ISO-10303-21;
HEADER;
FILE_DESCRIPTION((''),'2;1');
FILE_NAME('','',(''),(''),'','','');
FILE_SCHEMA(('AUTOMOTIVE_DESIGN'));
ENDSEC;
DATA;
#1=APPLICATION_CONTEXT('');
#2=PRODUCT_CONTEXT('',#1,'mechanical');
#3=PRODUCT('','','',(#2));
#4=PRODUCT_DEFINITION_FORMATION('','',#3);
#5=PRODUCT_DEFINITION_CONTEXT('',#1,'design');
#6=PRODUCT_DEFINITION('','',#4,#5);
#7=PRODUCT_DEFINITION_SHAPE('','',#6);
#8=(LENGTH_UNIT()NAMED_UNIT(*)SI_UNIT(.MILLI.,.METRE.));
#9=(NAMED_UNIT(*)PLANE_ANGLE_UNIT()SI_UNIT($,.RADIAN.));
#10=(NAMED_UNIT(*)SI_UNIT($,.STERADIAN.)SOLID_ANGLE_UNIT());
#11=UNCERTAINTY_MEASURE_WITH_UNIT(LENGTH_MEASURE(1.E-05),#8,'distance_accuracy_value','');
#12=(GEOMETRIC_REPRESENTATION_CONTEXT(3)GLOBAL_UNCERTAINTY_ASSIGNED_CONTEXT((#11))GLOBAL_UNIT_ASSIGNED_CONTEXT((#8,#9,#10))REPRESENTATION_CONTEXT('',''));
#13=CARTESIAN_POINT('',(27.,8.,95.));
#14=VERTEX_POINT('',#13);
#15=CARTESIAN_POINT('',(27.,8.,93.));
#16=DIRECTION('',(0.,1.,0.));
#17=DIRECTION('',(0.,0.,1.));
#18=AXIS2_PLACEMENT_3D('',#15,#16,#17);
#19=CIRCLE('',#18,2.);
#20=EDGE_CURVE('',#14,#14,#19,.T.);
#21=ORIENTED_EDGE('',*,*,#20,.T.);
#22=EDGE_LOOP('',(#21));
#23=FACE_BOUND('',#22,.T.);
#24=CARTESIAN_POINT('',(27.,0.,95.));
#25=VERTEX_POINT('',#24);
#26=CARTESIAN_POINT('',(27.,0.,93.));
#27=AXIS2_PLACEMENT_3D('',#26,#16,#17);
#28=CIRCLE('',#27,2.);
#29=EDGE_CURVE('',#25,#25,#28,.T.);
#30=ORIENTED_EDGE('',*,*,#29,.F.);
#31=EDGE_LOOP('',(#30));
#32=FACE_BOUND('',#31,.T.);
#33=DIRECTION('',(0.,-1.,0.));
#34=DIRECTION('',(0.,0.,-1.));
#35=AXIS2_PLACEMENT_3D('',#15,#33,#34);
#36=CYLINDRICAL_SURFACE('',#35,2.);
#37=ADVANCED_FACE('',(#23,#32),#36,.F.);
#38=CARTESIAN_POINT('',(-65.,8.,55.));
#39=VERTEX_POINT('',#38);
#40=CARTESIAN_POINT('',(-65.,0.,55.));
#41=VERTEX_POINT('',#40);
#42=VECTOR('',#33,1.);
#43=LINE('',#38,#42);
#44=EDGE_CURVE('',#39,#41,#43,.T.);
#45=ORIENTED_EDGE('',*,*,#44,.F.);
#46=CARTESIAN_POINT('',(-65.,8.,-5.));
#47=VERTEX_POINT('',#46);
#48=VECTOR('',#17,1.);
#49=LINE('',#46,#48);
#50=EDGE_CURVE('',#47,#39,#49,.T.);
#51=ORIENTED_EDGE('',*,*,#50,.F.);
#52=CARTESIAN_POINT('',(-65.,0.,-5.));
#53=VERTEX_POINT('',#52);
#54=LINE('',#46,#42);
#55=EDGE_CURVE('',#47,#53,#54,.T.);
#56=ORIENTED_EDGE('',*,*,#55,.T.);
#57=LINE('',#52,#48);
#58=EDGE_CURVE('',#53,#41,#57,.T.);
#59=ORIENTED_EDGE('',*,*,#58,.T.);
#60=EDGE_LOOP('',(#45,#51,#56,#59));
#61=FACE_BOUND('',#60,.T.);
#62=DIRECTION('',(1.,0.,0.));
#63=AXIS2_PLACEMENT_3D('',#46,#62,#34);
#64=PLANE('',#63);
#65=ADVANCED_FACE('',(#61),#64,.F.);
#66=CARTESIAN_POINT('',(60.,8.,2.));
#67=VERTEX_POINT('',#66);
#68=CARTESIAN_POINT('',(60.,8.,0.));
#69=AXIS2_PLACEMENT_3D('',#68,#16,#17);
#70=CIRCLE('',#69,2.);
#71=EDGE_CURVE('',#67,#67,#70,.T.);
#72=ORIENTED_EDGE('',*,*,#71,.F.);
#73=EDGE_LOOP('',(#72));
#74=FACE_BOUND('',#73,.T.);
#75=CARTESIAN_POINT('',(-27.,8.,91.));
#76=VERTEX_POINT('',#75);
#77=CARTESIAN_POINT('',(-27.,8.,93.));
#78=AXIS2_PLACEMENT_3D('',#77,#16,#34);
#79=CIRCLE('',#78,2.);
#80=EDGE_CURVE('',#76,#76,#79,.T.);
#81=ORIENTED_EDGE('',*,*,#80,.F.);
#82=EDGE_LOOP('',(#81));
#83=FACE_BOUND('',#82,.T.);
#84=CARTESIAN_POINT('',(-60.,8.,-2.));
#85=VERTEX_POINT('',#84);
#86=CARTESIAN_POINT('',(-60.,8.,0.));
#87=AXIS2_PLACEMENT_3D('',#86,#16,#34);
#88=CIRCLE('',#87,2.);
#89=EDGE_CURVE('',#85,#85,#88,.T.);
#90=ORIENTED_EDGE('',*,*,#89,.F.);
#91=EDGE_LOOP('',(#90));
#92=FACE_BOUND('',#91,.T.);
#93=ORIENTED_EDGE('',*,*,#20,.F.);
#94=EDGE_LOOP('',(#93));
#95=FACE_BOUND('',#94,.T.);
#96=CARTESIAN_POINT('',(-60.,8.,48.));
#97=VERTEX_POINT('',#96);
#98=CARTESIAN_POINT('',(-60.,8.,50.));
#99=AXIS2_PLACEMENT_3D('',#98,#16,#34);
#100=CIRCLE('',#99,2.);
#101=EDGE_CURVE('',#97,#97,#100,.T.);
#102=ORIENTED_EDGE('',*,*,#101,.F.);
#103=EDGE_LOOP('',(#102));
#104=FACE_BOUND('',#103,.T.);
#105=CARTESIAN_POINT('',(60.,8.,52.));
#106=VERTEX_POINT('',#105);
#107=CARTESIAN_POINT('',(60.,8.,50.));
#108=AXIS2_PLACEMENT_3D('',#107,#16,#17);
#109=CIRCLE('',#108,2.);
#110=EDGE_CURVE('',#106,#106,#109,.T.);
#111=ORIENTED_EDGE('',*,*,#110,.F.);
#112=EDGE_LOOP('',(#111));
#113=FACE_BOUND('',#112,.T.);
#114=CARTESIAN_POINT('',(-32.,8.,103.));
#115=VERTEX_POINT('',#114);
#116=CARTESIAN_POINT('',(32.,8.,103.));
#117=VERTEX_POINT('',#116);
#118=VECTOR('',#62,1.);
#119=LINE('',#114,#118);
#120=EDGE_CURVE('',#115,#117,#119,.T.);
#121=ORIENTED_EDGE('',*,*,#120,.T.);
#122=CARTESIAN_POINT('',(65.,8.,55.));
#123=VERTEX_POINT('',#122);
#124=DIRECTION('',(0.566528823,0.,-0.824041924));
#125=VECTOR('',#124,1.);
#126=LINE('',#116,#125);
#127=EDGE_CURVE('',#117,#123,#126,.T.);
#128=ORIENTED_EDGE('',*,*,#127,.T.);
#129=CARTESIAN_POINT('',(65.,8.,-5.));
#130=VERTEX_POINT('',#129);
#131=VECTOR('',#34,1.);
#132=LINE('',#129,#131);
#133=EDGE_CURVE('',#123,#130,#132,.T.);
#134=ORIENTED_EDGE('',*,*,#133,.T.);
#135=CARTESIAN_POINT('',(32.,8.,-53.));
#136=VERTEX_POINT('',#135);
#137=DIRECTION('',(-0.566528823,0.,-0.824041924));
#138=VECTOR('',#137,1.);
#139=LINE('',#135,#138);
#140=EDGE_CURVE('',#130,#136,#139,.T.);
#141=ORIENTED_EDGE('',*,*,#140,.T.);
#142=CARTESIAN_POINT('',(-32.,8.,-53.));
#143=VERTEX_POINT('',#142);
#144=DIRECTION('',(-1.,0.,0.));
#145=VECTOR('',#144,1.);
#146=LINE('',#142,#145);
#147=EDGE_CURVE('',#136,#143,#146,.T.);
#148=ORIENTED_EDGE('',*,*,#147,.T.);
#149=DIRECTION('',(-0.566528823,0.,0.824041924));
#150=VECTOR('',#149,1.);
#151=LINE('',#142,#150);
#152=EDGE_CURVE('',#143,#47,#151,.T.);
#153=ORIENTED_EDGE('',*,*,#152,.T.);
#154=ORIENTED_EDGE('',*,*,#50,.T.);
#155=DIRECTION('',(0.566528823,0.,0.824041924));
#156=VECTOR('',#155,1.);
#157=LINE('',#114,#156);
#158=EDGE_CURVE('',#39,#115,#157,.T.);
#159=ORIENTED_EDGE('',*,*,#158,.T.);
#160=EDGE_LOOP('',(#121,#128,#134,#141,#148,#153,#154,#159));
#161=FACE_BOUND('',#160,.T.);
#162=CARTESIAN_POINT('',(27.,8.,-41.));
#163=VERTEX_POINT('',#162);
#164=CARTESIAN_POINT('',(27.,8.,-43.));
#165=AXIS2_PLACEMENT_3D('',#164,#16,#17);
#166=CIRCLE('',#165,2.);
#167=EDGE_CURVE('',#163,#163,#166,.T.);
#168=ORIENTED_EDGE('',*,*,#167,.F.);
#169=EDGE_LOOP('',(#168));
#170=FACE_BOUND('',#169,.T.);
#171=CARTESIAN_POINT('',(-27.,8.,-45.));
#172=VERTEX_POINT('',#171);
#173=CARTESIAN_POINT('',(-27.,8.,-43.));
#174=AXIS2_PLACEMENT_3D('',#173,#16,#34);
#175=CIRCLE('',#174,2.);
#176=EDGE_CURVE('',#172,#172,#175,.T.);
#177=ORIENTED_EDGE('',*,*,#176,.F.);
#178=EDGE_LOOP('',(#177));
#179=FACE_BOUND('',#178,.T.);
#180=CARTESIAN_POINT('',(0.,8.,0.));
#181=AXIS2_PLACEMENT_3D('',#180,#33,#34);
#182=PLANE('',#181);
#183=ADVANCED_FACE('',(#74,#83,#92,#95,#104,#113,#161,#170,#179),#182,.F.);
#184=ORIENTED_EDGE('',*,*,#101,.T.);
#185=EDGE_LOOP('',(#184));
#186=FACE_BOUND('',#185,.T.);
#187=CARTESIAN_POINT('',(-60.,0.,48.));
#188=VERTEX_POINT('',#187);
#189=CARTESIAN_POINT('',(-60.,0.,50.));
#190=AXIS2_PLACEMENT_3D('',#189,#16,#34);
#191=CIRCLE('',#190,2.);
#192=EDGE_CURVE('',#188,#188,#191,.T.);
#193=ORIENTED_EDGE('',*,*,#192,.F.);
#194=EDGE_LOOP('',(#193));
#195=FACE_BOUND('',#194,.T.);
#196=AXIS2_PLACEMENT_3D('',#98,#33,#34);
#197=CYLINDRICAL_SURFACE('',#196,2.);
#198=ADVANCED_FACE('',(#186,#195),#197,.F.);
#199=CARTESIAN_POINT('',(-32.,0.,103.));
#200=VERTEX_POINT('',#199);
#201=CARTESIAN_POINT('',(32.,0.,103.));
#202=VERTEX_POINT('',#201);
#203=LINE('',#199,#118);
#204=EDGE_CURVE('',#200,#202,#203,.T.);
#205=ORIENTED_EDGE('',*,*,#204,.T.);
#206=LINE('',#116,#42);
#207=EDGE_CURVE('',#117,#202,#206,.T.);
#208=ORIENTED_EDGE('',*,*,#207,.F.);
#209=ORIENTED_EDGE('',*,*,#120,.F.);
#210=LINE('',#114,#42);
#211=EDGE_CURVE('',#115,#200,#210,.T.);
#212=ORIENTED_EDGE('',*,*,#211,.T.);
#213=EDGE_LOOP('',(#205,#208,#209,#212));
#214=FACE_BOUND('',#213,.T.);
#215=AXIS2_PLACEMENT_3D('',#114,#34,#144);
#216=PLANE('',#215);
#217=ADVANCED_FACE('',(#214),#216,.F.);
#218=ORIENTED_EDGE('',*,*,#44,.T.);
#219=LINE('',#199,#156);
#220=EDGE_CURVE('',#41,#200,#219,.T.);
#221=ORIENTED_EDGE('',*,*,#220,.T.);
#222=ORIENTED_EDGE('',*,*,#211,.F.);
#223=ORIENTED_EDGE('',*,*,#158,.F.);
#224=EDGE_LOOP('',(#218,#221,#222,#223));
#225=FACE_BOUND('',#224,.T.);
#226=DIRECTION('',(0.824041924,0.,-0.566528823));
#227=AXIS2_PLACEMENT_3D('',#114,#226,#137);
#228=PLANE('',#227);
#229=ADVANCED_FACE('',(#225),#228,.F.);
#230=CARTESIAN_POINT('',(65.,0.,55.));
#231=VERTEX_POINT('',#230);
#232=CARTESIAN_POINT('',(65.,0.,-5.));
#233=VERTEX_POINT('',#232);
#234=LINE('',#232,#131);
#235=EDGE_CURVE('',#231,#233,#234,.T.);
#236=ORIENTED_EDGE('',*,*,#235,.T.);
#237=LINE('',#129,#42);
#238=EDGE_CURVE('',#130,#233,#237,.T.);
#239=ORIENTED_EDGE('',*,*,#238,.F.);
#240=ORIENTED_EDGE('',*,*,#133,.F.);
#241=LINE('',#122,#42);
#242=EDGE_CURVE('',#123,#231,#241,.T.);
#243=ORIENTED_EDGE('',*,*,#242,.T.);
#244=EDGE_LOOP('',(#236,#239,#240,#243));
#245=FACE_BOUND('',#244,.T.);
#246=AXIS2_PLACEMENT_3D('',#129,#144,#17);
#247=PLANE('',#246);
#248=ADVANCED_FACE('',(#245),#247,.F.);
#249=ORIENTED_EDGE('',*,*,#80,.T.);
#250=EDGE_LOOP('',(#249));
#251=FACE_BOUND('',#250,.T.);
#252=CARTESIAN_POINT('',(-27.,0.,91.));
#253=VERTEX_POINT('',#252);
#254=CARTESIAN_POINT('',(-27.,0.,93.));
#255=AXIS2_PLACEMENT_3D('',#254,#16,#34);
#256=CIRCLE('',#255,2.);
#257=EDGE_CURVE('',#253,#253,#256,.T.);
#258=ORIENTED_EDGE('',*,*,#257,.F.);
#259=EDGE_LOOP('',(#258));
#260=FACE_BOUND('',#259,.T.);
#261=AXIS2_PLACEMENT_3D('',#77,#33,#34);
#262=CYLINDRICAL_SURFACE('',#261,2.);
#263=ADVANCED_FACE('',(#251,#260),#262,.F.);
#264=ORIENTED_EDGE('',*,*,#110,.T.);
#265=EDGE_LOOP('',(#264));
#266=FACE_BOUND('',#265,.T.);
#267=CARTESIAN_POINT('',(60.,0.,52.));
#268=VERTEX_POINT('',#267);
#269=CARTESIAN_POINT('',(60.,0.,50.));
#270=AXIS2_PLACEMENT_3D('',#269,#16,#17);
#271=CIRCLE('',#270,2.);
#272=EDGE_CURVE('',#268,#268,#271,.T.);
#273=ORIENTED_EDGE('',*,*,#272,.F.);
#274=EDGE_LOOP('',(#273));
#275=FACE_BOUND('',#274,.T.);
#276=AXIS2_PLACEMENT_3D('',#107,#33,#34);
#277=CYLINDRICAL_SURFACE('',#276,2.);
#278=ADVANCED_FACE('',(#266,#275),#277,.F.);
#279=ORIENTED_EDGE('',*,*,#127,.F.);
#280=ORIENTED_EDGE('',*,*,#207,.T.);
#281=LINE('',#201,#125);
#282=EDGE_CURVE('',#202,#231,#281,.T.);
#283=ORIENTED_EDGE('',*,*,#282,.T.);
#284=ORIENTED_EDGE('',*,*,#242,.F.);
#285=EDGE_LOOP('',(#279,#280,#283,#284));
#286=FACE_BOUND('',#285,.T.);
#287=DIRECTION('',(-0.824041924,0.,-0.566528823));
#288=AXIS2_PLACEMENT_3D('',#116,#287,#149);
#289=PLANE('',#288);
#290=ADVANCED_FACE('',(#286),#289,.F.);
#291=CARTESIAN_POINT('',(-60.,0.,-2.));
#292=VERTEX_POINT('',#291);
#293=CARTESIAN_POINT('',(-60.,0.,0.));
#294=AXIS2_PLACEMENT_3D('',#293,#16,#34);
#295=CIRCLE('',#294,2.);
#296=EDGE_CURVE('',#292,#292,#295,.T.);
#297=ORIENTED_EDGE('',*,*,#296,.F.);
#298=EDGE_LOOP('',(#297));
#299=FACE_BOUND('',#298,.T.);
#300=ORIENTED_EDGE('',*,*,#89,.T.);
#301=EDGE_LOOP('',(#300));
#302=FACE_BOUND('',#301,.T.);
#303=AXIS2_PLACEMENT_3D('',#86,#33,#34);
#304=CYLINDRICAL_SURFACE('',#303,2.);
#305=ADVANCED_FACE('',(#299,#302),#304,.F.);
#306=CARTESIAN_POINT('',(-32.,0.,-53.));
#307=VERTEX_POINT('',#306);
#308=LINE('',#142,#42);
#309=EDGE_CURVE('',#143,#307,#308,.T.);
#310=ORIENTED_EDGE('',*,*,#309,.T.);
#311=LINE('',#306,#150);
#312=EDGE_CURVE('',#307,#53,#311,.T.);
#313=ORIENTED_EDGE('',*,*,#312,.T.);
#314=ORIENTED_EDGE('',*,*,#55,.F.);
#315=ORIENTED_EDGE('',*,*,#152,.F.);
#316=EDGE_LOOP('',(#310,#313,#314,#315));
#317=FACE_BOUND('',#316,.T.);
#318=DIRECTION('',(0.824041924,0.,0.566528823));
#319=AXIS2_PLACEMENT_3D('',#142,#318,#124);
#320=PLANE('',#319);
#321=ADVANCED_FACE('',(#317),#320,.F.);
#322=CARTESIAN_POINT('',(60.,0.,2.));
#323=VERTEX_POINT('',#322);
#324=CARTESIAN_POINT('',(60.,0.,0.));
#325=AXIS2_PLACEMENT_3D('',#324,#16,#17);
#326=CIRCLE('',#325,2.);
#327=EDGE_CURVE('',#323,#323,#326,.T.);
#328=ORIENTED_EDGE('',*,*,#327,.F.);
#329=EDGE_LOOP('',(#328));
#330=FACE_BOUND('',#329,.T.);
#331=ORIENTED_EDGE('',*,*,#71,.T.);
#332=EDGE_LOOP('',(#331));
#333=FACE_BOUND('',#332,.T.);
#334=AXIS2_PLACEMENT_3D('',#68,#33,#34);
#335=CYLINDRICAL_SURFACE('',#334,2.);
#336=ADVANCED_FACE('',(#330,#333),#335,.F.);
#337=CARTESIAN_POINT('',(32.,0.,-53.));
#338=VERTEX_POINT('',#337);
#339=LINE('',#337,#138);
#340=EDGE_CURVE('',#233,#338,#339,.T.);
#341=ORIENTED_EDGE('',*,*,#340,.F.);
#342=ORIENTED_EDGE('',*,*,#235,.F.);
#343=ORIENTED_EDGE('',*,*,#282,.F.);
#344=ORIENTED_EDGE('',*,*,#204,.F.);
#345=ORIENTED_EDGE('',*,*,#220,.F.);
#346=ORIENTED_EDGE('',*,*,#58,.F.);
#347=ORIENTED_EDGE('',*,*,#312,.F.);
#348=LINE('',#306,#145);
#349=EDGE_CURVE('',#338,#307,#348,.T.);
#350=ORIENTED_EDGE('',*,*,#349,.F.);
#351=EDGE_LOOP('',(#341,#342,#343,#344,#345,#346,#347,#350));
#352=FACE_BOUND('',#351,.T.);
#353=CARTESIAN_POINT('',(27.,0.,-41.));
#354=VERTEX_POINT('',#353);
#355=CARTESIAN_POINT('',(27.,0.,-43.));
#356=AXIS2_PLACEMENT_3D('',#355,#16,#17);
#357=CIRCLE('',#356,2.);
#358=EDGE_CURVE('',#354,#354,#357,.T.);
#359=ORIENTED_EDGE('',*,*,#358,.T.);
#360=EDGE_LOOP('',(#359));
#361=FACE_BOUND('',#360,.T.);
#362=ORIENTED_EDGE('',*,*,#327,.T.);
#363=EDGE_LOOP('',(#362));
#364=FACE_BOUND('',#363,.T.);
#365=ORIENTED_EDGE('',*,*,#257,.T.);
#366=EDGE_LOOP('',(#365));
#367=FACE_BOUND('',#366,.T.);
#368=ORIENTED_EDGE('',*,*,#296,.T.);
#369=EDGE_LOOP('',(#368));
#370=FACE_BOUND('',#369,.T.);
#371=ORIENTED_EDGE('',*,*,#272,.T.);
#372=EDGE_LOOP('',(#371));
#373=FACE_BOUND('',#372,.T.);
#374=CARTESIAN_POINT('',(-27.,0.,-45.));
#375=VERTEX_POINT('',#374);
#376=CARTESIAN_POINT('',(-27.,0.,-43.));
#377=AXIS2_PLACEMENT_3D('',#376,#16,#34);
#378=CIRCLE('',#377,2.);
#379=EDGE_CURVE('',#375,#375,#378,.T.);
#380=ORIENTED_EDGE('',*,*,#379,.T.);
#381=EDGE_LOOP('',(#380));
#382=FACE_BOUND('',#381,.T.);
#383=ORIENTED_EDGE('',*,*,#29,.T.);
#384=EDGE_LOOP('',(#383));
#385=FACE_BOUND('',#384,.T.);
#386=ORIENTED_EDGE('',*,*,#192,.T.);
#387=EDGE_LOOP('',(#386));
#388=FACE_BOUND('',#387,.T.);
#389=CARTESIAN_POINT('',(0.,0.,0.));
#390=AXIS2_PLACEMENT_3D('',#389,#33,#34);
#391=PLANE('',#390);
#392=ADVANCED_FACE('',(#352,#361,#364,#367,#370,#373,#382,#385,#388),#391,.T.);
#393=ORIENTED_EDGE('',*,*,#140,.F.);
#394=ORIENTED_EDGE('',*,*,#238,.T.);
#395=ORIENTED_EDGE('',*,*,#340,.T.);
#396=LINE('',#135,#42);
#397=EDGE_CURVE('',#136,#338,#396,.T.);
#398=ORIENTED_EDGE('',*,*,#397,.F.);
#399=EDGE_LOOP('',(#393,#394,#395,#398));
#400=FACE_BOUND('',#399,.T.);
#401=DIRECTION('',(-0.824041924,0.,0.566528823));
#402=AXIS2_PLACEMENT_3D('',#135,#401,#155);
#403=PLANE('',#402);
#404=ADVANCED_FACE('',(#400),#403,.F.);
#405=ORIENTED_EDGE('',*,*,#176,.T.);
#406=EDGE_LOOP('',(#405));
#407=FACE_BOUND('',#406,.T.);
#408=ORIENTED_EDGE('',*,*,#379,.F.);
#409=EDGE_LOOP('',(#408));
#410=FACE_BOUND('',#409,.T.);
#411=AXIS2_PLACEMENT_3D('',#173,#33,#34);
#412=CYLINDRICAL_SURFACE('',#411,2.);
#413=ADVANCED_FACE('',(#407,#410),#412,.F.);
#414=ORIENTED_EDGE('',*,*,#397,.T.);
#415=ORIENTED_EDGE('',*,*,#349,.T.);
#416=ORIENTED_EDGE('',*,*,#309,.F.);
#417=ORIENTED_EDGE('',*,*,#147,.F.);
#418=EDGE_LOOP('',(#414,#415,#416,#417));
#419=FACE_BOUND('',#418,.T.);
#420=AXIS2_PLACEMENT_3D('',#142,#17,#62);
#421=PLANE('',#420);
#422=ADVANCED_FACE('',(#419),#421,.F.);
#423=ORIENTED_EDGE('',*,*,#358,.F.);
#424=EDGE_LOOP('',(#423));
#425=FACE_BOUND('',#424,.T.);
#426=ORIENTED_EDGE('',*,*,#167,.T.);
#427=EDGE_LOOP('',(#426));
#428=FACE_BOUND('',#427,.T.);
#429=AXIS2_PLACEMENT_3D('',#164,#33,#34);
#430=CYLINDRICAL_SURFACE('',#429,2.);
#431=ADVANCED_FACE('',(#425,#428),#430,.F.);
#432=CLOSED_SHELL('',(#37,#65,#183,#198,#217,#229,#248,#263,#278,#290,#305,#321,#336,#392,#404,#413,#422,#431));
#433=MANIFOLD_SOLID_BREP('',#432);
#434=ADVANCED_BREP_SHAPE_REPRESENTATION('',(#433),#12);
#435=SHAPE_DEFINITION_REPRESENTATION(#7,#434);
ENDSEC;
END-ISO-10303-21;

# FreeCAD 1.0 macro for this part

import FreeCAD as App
import Part
import Sketcher

V = App.Vector

doc = App.newDocument("Part")
body = doc.addObject("PartDesign::Body", "Body")

# Sketch on XZ plane
sketch1 = doc.addObject("Sketcher::SketchObject", "Sketch")
body.addObject(sketch1)
sketch1.AttachmentSupport = (doc.XZ_Plane, [""])
sketch1.MapMode = "FlatFace"
sketch1.addGeometry([
    Part.LineSegment(V(65, -5, 0), V(32, -53, 0)),  # 0
    Part.LineSegment(V(32, -53, 0), V(-32, -53, 0)),  # 1
    Part.LineSegment(V(-32, -53, 0), V(-65, -5, 0)),  # 2
    Part.LineSegment(V(-65, -5, 0), V(-65, 55, 0)),  # 3
    Part.LineSegment(V(-65, 55, 0), V(-32, 103, 0)),  # 4
    Part.LineSegment(V(-32, 103, 0), V(32, 103, 0)),  # 5
    Part.LineSegment(V(32, 103, 0), V(65, 55, 0)),  # 6
    Part.LineSegment(V(65, 55, 0), V(65, -5, 0)),  # 7
    Part.Circle(V(27, 93, 0), V(0, 0, 1), 2),  # 8
    Part.Circle(V(60, 50, 0), V(0, 0, 1), 2),  # 9
    Part.Circle(V(-27, 93, 0), V(0, 0, 1), 2),  # 10
    Part.Circle(V(-60, 50, 0), V(0, 0, 1), 2),  # 11
    Part.Circle(V(60, 0, 0), V(0, 0, 1), 2),  # 12
    Part.Circle(V(27, -43, 0), V(0, 0, 1), 2),  # 13
    Part.Circle(V(-60, 0, 0), V(0, 0, 1), 2),  # 14
    Part.Circle(V(-27, -43, 0), V(0, 0, 1), 2),  # 15
], False)
sketch1.addConstraint([
    Sketcher.Constraint("Coincident", 0, 2, 1, 1),
    Sketcher.Constraint("Coincident", 1, 2, 2, 1),
    Sketcher.Constraint("Coincident", 2, 2, 3, 1),
    Sketcher.Constraint("Coincident", 3, 2, 4, 1),
    Sketcher.Constraint("Coincident", 4, 2, 5, 1),
    Sketcher.Constraint("Coincident", 5, 2, 6, 1),
    Sketcher.Constraint("Coincident", 6, 2, 7, 1),
    Sketcher.Constraint("Coincident", 7, 2, 0, 1),
    Sketcher.Constraint("Horizontal", 1),
    Sketcher.Constraint("Vertical", 3),
    Sketcher.Constraint("Horizontal", 5),
    Sketcher.Constraint("Vertical", 7),
    Sketcher.Constraint("Equal", 8, 9),
    Sketcher.Constraint("Equal", 9, 10),
    Sketcher.Constraint("Equal", 10, 11),
    Sketcher.Constraint("Equal", 11, 12),
    Sketcher.Constraint("Equal", 12, 13),
    Sketcher.Constraint("Equal", 13, 14),
    Sketcher.Constraint("Equal", 14, 15),
    Sketcher.Constraint("Symmetric", 12, 3, 14, 3, -1, 1),
    Sketcher.Constraint("Symmetric", 8, 3, 10, 3, -2),
    Sketcher.Constraint("Symmetric", 9, 3, 11, 3, -2),
    Sketcher.Constraint("Symmetric", 13, 3, 15, 3, -2),
    Sketcher.Constraint("Symmetric", 3, 2, 6, 2, -2),
    Sketcher.Constraint("PointOnObject", 12, 3, -1),
    Sketcher.Constraint("Parallel", 0, 4),
    Sketcher.Constraint("Parallel", 2, 6),
    Sketcher.Constraint("Horizontal", 2, 2, 7, 2),
    Sketcher.Constraint("Vertical", 9, 3, 12, 3),
    Sketcher.Constraint("Vertical", 8, 3, 13, 3),
    Sketcher.Constraint("Vertical", 1, 2, 4, 2),
    Sketcher.Constraint("Vertical", 0, 2, 5, 2),
    Sketcher.Constraint("Diameter", 8, 4.0),
    Sketcher.Constraint("DistanceX", 1, 2, 1, 1, 64.0),
    Sketcher.Constraint("DistanceY", 3, 1, 3, 2, 60.0),
    Sketcher.Constraint("DistanceX", -1, 1, 8, 3, 27.0),
    Sketcher.Constraint("DistanceY", -1, 1, 8, 3, 93.0),
    Sketcher.Constraint("DistanceX", -1, 1, 9, 3, 60.0),
    Sketcher.Constraint("DistanceY", -1, 1, 9, 3, 50.0),
    Sketcher.Constraint("DistanceY", 13, 3, -1, 1, 43.0),
    Sketcher.Constraint("DistanceY", 0, 2, -1, 1, 53.0),
    Sketcher.Constraint("DistanceX", 2, 2, -1, 1, 65.0),
    Sketcher.Constraint("DistanceY", 2, 2, -1, 1, 5.0),
])
pad1 = doc.addObject("PartDesign::Pad", "Pad")
body.addObject(pad1)
pad1.Profile = sketch1
pad1.Length = 8
pad1.Reversed = True

doc.recompute()
